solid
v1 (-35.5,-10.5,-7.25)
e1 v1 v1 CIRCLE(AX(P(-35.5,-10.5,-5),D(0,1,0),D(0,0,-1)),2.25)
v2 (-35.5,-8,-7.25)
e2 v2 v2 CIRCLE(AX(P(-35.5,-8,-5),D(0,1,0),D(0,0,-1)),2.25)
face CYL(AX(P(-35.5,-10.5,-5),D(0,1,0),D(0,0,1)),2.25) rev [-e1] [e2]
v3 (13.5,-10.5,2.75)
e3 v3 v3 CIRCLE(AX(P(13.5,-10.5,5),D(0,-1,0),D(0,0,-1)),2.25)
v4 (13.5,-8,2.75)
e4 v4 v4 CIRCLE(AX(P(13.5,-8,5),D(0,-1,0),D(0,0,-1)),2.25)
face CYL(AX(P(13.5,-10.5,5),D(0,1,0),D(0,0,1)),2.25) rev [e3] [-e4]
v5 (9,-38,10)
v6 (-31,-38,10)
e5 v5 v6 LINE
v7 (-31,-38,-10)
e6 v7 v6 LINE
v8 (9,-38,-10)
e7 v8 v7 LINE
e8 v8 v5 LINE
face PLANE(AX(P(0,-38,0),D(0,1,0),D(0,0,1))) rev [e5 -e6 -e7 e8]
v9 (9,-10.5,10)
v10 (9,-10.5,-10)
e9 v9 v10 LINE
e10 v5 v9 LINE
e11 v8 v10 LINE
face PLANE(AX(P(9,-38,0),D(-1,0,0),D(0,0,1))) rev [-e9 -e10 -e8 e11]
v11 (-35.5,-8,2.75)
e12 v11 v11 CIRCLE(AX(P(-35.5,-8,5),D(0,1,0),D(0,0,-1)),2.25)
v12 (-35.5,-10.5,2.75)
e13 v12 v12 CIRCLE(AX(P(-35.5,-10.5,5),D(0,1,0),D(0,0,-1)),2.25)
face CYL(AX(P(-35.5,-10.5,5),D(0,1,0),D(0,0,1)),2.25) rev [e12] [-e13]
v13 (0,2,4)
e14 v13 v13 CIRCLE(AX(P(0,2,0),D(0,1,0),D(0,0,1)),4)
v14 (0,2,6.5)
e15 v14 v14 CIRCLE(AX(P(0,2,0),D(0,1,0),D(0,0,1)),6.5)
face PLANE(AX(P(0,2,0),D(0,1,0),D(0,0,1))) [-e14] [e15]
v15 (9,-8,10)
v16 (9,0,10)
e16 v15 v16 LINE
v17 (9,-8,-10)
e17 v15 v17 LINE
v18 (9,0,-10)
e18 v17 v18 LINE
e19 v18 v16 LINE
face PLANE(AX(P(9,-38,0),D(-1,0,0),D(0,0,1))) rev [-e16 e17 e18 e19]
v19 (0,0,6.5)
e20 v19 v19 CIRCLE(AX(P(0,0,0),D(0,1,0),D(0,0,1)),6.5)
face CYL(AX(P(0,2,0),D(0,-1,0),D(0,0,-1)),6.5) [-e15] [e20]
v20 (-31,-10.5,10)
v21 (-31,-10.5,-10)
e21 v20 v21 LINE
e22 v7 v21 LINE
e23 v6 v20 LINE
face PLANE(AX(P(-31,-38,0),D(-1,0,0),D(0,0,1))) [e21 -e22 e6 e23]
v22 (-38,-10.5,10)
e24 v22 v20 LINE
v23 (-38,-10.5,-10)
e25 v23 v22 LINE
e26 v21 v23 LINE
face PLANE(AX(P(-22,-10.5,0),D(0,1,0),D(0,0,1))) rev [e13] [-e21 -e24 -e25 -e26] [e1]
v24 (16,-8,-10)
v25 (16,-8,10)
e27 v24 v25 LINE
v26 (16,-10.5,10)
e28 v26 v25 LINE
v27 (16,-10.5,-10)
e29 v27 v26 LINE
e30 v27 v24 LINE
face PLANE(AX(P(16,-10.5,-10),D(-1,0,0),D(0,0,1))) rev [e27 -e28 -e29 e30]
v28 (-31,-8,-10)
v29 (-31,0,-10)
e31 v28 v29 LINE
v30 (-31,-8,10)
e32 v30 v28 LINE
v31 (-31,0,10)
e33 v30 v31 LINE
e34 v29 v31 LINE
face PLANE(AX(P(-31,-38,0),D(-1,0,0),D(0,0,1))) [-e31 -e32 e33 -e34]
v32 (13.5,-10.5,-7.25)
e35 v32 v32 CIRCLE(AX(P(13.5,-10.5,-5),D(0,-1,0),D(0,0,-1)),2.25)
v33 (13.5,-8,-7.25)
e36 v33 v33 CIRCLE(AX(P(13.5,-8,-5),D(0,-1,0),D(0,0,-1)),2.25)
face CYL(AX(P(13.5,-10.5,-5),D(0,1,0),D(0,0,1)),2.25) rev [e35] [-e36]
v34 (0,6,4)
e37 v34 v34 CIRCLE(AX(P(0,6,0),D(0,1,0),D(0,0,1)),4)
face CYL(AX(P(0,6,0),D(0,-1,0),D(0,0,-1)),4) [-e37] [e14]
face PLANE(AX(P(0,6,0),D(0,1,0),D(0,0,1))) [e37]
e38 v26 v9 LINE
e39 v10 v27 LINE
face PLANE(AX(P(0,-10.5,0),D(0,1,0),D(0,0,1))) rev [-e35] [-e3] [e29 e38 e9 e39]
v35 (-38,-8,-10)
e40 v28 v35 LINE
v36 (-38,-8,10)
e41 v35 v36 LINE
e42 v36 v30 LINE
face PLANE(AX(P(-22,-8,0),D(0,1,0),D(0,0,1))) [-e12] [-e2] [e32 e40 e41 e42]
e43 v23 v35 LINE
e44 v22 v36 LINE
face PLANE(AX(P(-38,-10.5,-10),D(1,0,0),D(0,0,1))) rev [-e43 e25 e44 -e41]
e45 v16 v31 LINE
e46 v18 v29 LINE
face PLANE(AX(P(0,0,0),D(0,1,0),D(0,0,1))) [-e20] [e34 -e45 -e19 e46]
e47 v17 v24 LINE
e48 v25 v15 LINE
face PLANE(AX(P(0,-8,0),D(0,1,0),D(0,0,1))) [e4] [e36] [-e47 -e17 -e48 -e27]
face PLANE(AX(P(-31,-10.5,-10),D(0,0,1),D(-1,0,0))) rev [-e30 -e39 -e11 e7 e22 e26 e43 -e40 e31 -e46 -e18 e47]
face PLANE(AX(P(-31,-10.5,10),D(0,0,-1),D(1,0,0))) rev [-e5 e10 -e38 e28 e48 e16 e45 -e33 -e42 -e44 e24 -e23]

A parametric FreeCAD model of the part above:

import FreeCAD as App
import Part
import Sketcher
Q = App.Units.Quantity


def add_polygon(sketch, points):
    """Adds a closed chain of lines whose ends are joined by coincident constraints."""
    first, n = sketch.GeometryCount, len(points)
    for a, b in zip(points, points[1:] + points[:1]):
        sketch.addGeometry(Part.LineSegment(App.Vector(*a, 0), App.Vector(*b, 0)), False)
    for i in range(n):
        sketch.addConstraint(Sketcher.Constraint("Coincident", first + i, 2, first + (i + 1) % n, 1))

doc = App.newDocument("Part")
body = doc.addObject("PartDesign::Body", "Body")

# Sketch on XZ plane
sketch1 = body.newObject("Sketcher::SketchObject", "Sketch")
sketch1.AttachmentSupport = (doc.getObject("XZ_Plane"), [""])
sketch1.MapMode = "FlatFace"
add_polygon(sketch1, [(-31, -10), (-31, 10), (9, 10), (9, -10)])  # lines 0-3
sketch1.addConstraint(Sketcher.Constraint("Vertical", 0))
sketch1.addConstraint(Sketcher.Constraint("Horizontal", 1))
sketch1.addConstraint(Sketcher.Constraint("Vertical", 2))
sketch1.addConstraint(Sketcher.Constraint("Horizontal", 3))
sketch1.addConstraint(Sketcher.Constraint("DistanceX", 1, 1, 1, 2, Q("40 mm")))
sketch1.addConstraint(Sketcher.Constraint("DistanceY", 0, 1, 0, 2, Q("20 mm")))
sketch1.addConstraint(Sketcher.Constraint("DistanceX", 0, 2, -1, 1, Q("31 mm")))
sketch1.addConstraint(Sketcher.Constraint("DistanceY", -1, 1, 0, 2, Q("10 mm")))
pad1 = body.newObject("PartDesign::Pad", "Pad")
pad1.Profile = sketch1
pad1.Length = 38

# Sketch on XZ plane
sketch2 = body.newObject("Sketcher::SketchObject", "Sketch001")
sketch2.AttachmentSupport = (doc.getObject("XZ_Plane"), [""])
sketch2.MapMode = "FlatFace"
sketch2.addGeometry(Part.Circle(App.Vector(0, 0, 0), App.Vector(0, 0, 1), 4), False)
sketch2.addConstraint(Sketcher.Constraint("Coincident", 0, 3, -1, 1))
sketch2.addConstraint(Sketcher.Constraint("Diameter", 0, Q("8 mm")))
pad2 = body.newObject("PartDesign::Pad", "Pad001")
pad2.Profile = sketch2
pad2.Length = 6
pad2.Reversed = True

# Sketch on XZ plane
sketch3 = body.newObject("Sketcher::SketchObject", "Sketch002")
sketch3.AttachmentSupport = (doc.getObject("XZ_Plane"), [""])
sketch3.MapMode = "FlatFace"
sketch3.addGeometry(Part.Circle(App.Vector(0, 0, 0), App.Vector(0, 0, 1), 6), False)
sketch3.addConstraint(Sketcher.Constraint("Coincident", 0, 3, -1, 1))
sketch3.addConstraint(Sketcher.Constraint("Diameter", 0, Q("13 mm")))
pad3 = body.newObject("PartDesign::Pad", "Pad002")
pad3.Profile = sketch3
pad3.Length = 2
pad3.Reversed = True
body2 = doc.addObject("PartDesign::Body", "Body001")

# Sketch on XZ plane
sketch4 = body2.newObject("Sketcher::SketchObject", "Sketch003")
sketch4.AttachmentSupport = (doc.getObject("XZ_Plane001"), [""])
sketch4.MapMode = "FlatFace"
sketch4.AttachmentOffset = App.Placement(App.Vector(0, 0, 8), App.Rotation())
add_polygon(sketch4, [(16, -10), (16, 10), (9, 10), (9, -10)])  # lines 0-3
sketch4.addGeometry(Part.Circle(App.Vector(13.5, 5, 0), App.Vector(0, 0, 1), 2.2), False)  # 4
sketch4.addGeometry(Part.Circle(App.Vector(13.5, -5, 0), App.Vector(0, 0, 1), 2.2), False)  # 5
sketch4.addConstraint(Sketcher.Constraint("Vertical", 0))
sketch4.addConstraint(Sketcher.Constraint("Horizontal", 1))
sketch4.addConstraint(Sketcher.Constraint("Vertical", 2))
sketch4.addConstraint(Sketcher.Constraint("Horizontal", 3))
sketch4.addConstraint(Sketcher.Constraint("Equal", 4, 5))
sketch4.addConstraint(Sketcher.Constraint("Symmetric", 4, 3, 5, 3, -1))
sketch4.addConstraint(Sketcher.Constraint("Diameter", 4, Q("4.5 mm")))
sketch4.addConstraint(Sketcher.Constraint("DistanceX", 1, 2, 1, 1, Q("7 mm")))
sketch4.addConstraint(Sketcher.Constraint("DistanceY", 0, 1, 0, 2, Q("20 mm")))
sketch4.addConstraint(Sketcher.Constraint("DistanceY", -1, 1, 4, 3, Q("5 mm")))
sketch4.addConstraint(Sketcher.Constraint("DistanceX", -1, 1, 0, 2, Q("16 mm")))
sketch4.addConstraint(Sketcher.Constraint("DistanceY", -1, 1, 0, 2, Q("10 mm")))
sketch4.addConstraint(Sketcher.Constraint("DistanceX", -1, 1, 4, 3, Q("13.5 mm")))
pad4 = body2.newObject("PartDesign::Pad", "Pad003")
pad4.Profile = sketch4
pad4.Length = 2.5
body3 = doc.addObject("PartDesign::Body", "Body002")
doc.recompute()

mirroring = doc.addObject("Part::Mirroring", "Mirroring")
mirroring.Source = body2
mirroring.Base = App.Vector(-11, 0, 0)
mirroring.Normal = App.Vector(1, 0, 0)
body3.BaseFeature = mirroring
doc.recompute()

boolean = body3.newObject("PartDesign::Boolean", "Boolean")
boolean.Type = "Fuse"
boolean.addObjects([body])
doc.recompute()

boolean2 = body3.newObject("PartDesign::Boolean", "Boolean001")
boolean2.Type = "Fuse"
boolean2.addObjects([body2])
mirroring.Visibility = False

doc.recompute()
